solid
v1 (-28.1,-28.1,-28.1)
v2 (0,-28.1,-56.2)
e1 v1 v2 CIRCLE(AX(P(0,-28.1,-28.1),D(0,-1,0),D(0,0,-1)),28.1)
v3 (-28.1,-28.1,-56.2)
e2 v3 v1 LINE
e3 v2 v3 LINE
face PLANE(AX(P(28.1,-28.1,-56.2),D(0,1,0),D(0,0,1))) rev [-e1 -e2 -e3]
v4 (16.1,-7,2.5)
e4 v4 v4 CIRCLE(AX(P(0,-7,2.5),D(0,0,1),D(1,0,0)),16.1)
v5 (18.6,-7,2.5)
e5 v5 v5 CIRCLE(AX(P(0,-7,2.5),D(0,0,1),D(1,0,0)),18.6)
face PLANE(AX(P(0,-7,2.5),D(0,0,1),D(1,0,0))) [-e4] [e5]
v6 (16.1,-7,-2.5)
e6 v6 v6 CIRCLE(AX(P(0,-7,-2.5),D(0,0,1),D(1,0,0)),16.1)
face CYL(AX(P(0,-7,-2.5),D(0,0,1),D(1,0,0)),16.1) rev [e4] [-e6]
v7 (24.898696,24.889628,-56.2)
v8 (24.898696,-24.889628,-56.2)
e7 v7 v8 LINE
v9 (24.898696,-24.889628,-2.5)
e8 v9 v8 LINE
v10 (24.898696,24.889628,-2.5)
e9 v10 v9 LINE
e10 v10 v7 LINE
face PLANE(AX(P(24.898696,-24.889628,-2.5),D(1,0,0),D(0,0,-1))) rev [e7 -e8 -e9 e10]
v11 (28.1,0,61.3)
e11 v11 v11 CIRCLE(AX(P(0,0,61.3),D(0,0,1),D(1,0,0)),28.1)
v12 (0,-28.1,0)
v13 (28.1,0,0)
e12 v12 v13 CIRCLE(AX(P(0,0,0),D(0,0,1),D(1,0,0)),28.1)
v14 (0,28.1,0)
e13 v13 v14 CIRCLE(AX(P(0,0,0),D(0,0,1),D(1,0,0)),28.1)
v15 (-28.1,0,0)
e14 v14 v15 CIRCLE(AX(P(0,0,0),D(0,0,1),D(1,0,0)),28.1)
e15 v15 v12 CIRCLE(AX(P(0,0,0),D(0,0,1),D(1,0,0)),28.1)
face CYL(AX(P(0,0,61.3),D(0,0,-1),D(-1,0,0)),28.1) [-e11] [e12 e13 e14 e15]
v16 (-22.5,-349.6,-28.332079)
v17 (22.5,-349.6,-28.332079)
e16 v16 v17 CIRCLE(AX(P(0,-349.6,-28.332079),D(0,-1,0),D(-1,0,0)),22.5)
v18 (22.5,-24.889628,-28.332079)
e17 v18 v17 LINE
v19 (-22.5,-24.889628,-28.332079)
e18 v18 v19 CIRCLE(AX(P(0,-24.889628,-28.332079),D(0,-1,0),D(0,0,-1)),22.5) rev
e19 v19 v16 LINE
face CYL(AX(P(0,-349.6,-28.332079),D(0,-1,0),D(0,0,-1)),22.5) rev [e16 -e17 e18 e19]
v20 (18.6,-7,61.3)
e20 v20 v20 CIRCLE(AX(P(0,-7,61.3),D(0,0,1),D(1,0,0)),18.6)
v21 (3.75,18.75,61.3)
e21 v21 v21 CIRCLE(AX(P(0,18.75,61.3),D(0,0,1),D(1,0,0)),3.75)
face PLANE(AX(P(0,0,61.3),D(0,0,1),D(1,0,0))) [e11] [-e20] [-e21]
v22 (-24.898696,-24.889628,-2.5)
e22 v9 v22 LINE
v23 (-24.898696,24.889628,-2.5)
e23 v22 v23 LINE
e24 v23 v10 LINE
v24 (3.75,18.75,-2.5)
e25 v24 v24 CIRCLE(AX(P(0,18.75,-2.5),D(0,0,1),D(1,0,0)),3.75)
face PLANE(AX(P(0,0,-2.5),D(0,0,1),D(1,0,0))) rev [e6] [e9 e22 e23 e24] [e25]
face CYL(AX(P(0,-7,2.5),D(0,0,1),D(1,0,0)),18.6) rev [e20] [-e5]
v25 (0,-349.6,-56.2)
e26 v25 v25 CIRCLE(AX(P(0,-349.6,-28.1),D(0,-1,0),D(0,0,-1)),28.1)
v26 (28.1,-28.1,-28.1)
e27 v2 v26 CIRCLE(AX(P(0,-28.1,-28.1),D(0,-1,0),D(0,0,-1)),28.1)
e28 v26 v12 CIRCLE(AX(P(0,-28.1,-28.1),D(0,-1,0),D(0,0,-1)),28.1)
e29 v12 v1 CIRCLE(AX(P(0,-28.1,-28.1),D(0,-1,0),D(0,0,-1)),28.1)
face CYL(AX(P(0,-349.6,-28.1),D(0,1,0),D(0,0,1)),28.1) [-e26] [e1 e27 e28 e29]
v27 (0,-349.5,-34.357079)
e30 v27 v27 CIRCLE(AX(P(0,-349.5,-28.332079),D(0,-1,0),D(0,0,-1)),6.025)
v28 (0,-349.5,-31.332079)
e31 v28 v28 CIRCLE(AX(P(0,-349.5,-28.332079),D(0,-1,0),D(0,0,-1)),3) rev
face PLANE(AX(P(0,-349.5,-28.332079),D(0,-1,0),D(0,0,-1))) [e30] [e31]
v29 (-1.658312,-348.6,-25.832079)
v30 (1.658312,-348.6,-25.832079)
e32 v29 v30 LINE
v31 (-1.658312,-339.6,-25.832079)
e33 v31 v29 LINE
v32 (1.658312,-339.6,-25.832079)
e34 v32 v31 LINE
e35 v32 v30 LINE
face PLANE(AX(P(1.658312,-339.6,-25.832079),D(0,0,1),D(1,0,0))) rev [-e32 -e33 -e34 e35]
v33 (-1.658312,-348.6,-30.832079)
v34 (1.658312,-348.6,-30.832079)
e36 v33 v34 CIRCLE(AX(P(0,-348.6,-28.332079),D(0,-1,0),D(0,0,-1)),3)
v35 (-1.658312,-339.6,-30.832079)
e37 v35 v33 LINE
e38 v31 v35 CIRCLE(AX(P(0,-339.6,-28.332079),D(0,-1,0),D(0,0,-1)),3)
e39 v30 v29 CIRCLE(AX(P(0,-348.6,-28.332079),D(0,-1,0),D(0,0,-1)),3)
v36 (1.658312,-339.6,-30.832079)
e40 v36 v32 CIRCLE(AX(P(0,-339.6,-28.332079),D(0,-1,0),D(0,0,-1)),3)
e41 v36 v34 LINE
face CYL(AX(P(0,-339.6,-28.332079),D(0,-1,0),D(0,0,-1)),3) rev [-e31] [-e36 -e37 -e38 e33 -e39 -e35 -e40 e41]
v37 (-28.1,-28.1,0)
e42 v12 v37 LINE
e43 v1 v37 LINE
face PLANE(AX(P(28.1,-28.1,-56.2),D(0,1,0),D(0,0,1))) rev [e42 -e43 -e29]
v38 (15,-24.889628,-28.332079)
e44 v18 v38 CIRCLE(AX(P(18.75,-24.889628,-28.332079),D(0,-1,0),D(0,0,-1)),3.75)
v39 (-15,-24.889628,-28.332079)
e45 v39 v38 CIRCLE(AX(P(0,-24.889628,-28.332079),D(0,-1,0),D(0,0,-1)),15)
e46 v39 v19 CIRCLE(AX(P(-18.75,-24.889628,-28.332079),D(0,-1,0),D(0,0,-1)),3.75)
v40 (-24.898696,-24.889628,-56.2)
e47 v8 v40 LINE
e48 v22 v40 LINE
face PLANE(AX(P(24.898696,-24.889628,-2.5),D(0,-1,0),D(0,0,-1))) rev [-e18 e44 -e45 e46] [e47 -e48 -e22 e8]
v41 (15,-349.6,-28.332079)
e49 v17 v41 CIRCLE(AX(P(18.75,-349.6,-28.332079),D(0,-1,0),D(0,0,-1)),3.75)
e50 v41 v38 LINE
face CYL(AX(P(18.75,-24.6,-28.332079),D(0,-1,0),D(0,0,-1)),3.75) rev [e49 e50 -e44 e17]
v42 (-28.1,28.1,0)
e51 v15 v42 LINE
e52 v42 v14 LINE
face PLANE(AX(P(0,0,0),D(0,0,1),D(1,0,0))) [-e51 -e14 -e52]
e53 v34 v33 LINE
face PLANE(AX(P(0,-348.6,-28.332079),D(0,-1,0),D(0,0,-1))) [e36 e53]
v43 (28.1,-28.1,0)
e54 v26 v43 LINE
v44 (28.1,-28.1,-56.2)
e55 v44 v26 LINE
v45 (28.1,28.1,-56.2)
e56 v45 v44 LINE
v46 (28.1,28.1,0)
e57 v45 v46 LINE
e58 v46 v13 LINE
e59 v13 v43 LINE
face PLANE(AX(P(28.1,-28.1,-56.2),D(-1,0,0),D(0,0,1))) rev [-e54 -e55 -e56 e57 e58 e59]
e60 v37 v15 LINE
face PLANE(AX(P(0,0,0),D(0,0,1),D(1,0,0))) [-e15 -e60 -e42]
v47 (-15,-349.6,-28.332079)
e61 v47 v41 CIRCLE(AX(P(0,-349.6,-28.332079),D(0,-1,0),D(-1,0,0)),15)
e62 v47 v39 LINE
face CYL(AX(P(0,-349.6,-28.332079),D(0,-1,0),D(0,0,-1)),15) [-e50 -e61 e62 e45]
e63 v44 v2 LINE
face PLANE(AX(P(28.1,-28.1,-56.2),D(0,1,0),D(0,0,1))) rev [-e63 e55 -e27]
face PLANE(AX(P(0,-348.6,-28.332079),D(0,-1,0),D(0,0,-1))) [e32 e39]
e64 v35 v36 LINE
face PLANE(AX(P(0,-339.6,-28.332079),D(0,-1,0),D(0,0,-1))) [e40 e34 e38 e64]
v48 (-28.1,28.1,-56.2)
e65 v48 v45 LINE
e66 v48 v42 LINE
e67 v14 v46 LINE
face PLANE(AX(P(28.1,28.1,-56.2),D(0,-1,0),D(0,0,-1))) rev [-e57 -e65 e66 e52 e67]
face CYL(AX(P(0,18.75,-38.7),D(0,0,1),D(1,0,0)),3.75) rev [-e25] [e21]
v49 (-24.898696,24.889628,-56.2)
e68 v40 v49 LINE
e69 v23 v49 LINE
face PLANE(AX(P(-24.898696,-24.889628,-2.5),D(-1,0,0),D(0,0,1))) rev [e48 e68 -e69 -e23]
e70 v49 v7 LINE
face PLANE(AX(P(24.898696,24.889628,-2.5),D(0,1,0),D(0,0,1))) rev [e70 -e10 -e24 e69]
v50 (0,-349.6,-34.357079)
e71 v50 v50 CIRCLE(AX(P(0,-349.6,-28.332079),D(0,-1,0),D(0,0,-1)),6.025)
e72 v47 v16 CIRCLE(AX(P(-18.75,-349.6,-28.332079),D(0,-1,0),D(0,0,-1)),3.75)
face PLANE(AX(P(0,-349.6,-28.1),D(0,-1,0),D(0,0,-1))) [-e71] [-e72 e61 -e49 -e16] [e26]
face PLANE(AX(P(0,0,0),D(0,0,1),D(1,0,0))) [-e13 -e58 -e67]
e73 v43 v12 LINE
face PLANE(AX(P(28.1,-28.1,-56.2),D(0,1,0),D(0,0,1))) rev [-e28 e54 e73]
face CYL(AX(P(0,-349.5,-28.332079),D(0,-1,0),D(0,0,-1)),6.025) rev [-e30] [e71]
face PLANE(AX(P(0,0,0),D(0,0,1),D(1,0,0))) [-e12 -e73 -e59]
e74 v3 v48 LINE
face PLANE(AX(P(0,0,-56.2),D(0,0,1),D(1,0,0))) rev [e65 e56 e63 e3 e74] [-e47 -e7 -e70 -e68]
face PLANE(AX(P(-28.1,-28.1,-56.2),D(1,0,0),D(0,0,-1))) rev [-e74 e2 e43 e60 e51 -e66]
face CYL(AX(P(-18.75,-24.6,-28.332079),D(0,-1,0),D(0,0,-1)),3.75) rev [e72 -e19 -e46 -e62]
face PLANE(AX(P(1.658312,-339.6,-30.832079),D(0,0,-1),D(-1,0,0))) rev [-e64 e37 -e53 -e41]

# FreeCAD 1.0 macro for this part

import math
import FreeCAD as App
import Part
import Sketcher
Q = App.Units.Quantity


def add_polygon(sketch, points):
    """Adds a closed chain of lines whose ends are joined by coincident constraints."""
    first, n = sketch.GeometryCount, len(points)
    for a, b in zip(points, points[1:] + points[:1]):
        sketch.addGeometry(Part.LineSegment(App.Vector(*a, 0), App.Vector(*b, 0)), False)
    for i in range(n):
        sketch.addConstraint(Sketcher.Constraint("Coincident", first + i, 2, first + (i + 1) % n, 1))

doc = App.newDocument("Part")
body = doc.addObject("PartDesign::Body", "Body")

sketch1 = body.newObject("Sketcher::SketchObject", "Sketch")
sketch1.AttachmentSupport = (doc.getObject("XY_Plane"), [""])
sketch1.MapMode = "FlatFace"
sketch1.addGeometry(Part.Circle(App.Vector(0, 0, 0), App.Vector(0, 0, 1), 28), False)
sketch1.addConstraint([
    Sketcher.Constraint("Coincident", 0, 3, -1, 1),
    Sketcher.Constraint("Diameter", 0, Q("56.2 mm")),
])
pad1 = body.newObject("PartDesign::Pad", "Pad")
pad1.Profile = sketch1
pad1.Length = 61.3

sketch2 = body.newObject("Sketcher::SketchObject", "Sketch001")
sketch2.AttachmentSupport = (doc.getObject("XY_Plane"), [""])
sketch2.MapMode = "FlatFace"
sketch2.AttachmentOffset = App.Placement(App.Vector(0, 0, 61.3), App.Rotation())
sketch2.addGeometry(Part.Circle(App.Vector(0, -7, 0), App.Vector(0, 0, 1), 19), False)
sketch2.addConstraint([
    Sketcher.Constraint("PointOnObject", 0, 3, -2),
    Sketcher.Constraint("Diameter", 0, Q("37.2 mm")),
    Sketcher.Constraint("DistanceY", 0, 3, -1, 1, Q("7 mm")),
])
pocket1 = body.newObject("PartDesign::Pocket", "Pocket")
pocket1.Profile = sketch2
pocket1.Length = 58.8

sketch3 = body.newObject("Sketcher::SketchObject", "Sketch002")
sketch3.AttachmentSupport = (doc.getObject("XY_Plane"), [""])
sketch3.MapMode = "FlatFace"
add_polygon(sketch3, [(28, 28), (28, -28), (-28, -28), (-28, 28)])
sketch3.addConstraint([
    Sketcher.Constraint("Vertical", 0),
    Sketcher.Constraint("Horizontal", 1),
    Sketcher.Constraint("Vertical", 2),
    Sketcher.Constraint("Horizontal", 3),
    Sketcher.Constraint("Symmetric", 0, 2, 2, 2, -1, 1),
    Sketcher.Constraint("Equal", 3, 0),
    Sketcher.Constraint("DistanceX", 1, 2, 1, 1, Q("56.2 mm")),
])
pad2 = body.newObject("PartDesign::Pad", "Pad001")
pad2.Profile = sketch3
pad2.Length = 56.2
pad2.Reversed = True

sketch4 = body.newObject("Sketcher::SketchObject", "Sketch003")
sketch4.AttachmentSupport = (doc.getObject("XY_Plane"), [""])
sketch4.MapMode = "FlatFace"
sketch4.AttachmentOffset = App.Placement(App.Vector(0, 0, 2.5), App.Rotation())
sketch4.addGeometry(Part.Circle(App.Vector(0, -7, 0), App.Vector(0, 0, 1), 16), False)
sketch4.addConstraint([
    Sketcher.Constraint("PointOnObject", 0, 3, -2),
    Sketcher.Constraint("Diameter", 0, Q("32.2 mm")),
    Sketcher.Constraint("DistanceY", 0, 3, -1, 1, Q("7 mm")),
])
pocket2 = body.newObject("PartDesign::Pocket", "Pocket001")
pocket2.Profile = sketch4
pocket2.Length = 5

sketch5 = body.newObject("Sketcher::SketchObject", "Sketch004")
sketch5.AttachmentSupport = (doc.getObject("XY_Plane"), [""])
sketch5.MapMode = "FlatFace"
sketch5.AttachmentOffset = App.Placement(App.Vector(0, 0, -56.2), App.Rotation())
add_polygon(sketch5, [(25, 25), (25, -25), (-25, -25), (-25, 25)])
sketch5.addConstraint([
    Sketcher.Constraint("Vertical", 0),
    Sketcher.Constraint("Horizontal", 1),
    Sketcher.Constraint("Vertical", 2),
    Sketcher.Constraint("Horizontal", 3),
    Sketcher.Constraint("Symmetric", 0, 2, 2, 2, -1, 1),
    Sketcher.Constraint("DistanceX", 1, 2, 1, 1, Q("49.797391 mm")),
    Sketcher.Constraint("DistanceY", 0, 2, 0, 1, Q("49.779255 mm")),
])
pocket3 = body.newObject("PartDesign::Pocket", "Pocket002")
pocket3.Profile = sketch5
pocket3.Length = 53.7
pocket3.Reversed = True

sketch6 = body.newObject("Sketcher::SketchObject", "Sketch005")
sketch6.AttachmentSupport = (doc.getObject("XZ_Plane"), [""])
sketch6.MapMode = "FlatFace"
sketch6.AttachmentOffset = App.Placement(App.Vector(0, 0, 28.1), App.Rotation())
sketch6.addGeometry(Part.Circle(App.Vector(0, -28, 0), App.Vector(0, 0, 1), 28), False)
sketch6.addConstraint([
    Sketcher.Constraint("PointOnObject", 0, 3, -2),
    Sketcher.Constraint("Diameter", 0, Q("56.2 mm")),
    Sketcher.Constraint("DistanceY", 0, 3, -1, 1, Q("28.1 mm")),
])
pad3 = body.newObject("PartDesign::Pad", "Pad002")
pad3.Profile = sketch6
pad3.Length = 321.5

sketch7 = body.newObject("Sketcher::SketchObject", "Sketch006")
sketch7.AttachmentSupport = (doc.getObject("XZ_Plane"), [""])
sketch7.MapMode = "FlatFace"
sketch7.AttachmentOffset = App.Placement(App.Vector(0, 0, 349.6), App.Rotation())
sketch7.addGeometry([
    Part.LineSegment(App.Vector(1.7, -25.8, 0), App.Vector(-1.7, -25.8, 0)),
    Part.ArcOfCircle(Part.Circle(App.Vector(0, -28.3, 0), App.Vector(0, 0, 1), 3), math.radians(124), math.radians(236)),
    Part.LineSegment(App.Vector(-1.7, -30.8, 0), App.Vector(1.7, -30.8, 0)),
    Part.ArcOfCircle(Part.Circle(App.Vector(0, -28.3, 0), App.Vector(0, 0, 1), 3), math.radians(-56), math.radians(56)),
], False)
sketch7.addConstraint([
    Sketcher.Constraint("Coincident", 0, 2, 1, 1),
    Sketcher.Constraint("Coincident", 1, 2, 2, 1),
    Sketcher.Constraint("Coincident", 2, 2, 3, 1),
    Sketcher.Constraint("Coincident", 3, 2, 0, 1),
    Sketcher.Constraint("Horizontal", 0),
    Sketcher.Constraint("Horizontal", 2),
    Sketcher.Constraint("Coincident", 3, 3, 1, 3),
    Sketcher.Constraint("Equal", 1, 3),
    Sketcher.Constraint("PointOnObject", 1, 3, -2),
    Sketcher.Constraint("Vertical", 0, 2, 1, 2),
    Sketcher.Constraint("Radius", 1, Q("3 mm")),
    Sketcher.Constraint("DistanceY", 1, 2, 0, 2, Q("5 mm")),
    Sketcher.Constraint("DistanceY", 1, 3, -1, 1, Q("28.332079 mm")),
])
pocket4 = body.newObject("PartDesign::Pocket", "Pocket003")
pocket4.Profile = sketch7
pocket4.Length = 10

sketch8 = body.newObject("Sketcher::SketchObject", "Sketch007")
sketch8.AttachmentSupport = (doc.getObject("XZ_Plane"), [""])
sketch8.MapMode = "FlatFace"
sketch8.AttachmentOffset = App.Placement(App.Vector(0, 0, 349.6), App.Rotation())
sketch8.addGeometry(Part.Circle(App.Vector(0, -28.3, 0), App.Vector(0, 0, 1), 3), False)
sketch8.addConstraint([
    Sketcher.Constraint("PointOnObject", 0, 3, -2),
    Sketcher.Constraint("Diameter", 0, Q("6 mm")),
    Sketcher.Constraint("DistanceY", 0, 3, -1, 1, Q("28.332079 mm")),
])
pocket5 = body.newObject("PartDesign::Pocket", "Pocket004")
pocket5.Profile = sketch8
pocket5.Length = 1

sketch9 = body.newObject("Sketcher::SketchObject", "Sketch008")
sketch9.AttachmentSupport = (doc.getObject("XZ_Plane"), [""])
sketch9.MapMode = "FlatFace"
sketch9.AttachmentOffset = App.Placement(App.Vector(0, 0, 349.6), App.Rotation())
sketch9.addGeometry(Part.Circle(App.Vector(0, -28, 0), App.Vector(0, 0, 1), 6), False)
sketch9.addConstraint([
    Sketcher.Constraint("PointOnObject", 0, 3, -2),
    Sketcher.Constraint("Diameter", 0, Q("12.05 mm")),
    Sketcher.Constraint("DistanceY", 0, 3, -1, 1, Q("28.332079 mm")),
])
pocket6 = body.newObject("PartDesign::Pocket", "Pocket005")
pocket6.Profile = sketch9
pocket6.Length = 0.1

sketch10 = body.newObject("Sketcher::SketchObject", "Sketch009")
sketch10.AttachmentSupport = (doc.getObject("XY_Plane"), [""])
sketch10.MapMode = "FlatFace"
sketch10.AttachmentOffset = App.Placement(App.Vector(0, 0, -28.332079), App.Rotation())
add_polygon(sketch10, [(-23, -350), (-15, -350), (-15, -20), (-23, -20)])
sketch10.addConstraint([
    Sketcher.Constraint("Horizontal", 0),
    Sketcher.Constraint("Vertical", 1),
    Sketcher.Constraint("Horizontal", 2),
    Sketcher.Constraint("Vertical", 3),
    Sketcher.Constraint("DistanceX", 0, 1, 0, 2, Q("7.5 mm")),
    Sketcher.Constraint("DistanceY", 1, 1, 1, 2, Q("329.6 mm")),
    Sketcher.Constraint("DistanceX", 0, 2, -1, 1, Q("15 mm")),
    Sketcher.Constraint("DistanceY", 1, 2, -1, 1, Q("20 mm")),
])

sketch11 = body.newObject("Sketcher::SketchObject", "Sketch010")
sketch11.AttachmentSupport = (doc.getObject("XZ_Plane"), [""])
sketch11.MapMode = "FlatFace"
sketch11.AttachmentOffset = App.Placement(App.Vector(0, 0, 349.6), App.Rotation())
sketch11.addGeometry(Part.ArcOfCircle(Part.Circle(App.Vector(0, -28, 0), App.Vector(0, 0, 1), 15), math.radians(180), math.radians(360)), False)
sketch11.addConstraint([
    Sketcher.Constraint("Symmetric", 0, 1, 0, 2, -2),
    Sketcher.Constraint("Radius", 0, Q("15 mm")),
    Sketcher.Constraint("DistanceY", 0, 3, -1, 1, Q("28.332079 mm")),
    Sketcher.Constraint("DistanceY", 0, 1, -1, 1, Q("28.332079 mm")),
])
doc.recompute()

subtractivepipe = body.newObject("PartDesign::SubtractivePipe", "SubtractivePipe")
subtractivepipe.Profile = sketch10
subtractivepipe.Spine = (sketch11, ["Edge1"])

sketch12 = body.newObject("Sketcher::SketchObject", "Sketch011")
sketch12.AttachmentSupport = (doc.getObject("XY_Plane"), [""])
sketch12.MapMode = "FlatFace"
sketch12.AttachmentOffset = App.Placement(App.Vector(0, 0, 61.3), App.Rotation())
sketch12.addGeometry(Part.Circle(App.Vector(0, 18.8, 0), App.Vector(0, 0, 1), 3.8), False)
sketch12.addConstraint([
    Sketcher.Constraint("PointOnObject", 0, 3, -2),
    Sketcher.Constraint("Diameter", 0, Q("7.5 mm")),
    Sketcher.Constraint("DistanceY", -1, 1, 0, 3, Q("18.75 mm")),
])
pocket7 = body.newObject("PartDesign::Pocket", "Pocket006")
pocket7.Profile = sketch12
pocket7.Length = 100

sketch13 = body.newObject("Sketcher::SketchObject", "Sketch012")
sketch13.AttachmentSupport = (doc.getObject("XZ_Plane"), [""])
sketch13.MapMode = "FlatFace"
sketch13.AttachmentOffset = App.Placement(App.Vector(0, 0, 349.6), App.Rotation())
sketch13.addGeometry([
    Part.Circle(App.Vector(18.8, -28.3, 0), App.Vector(0, 0, 1), 3.8),
    Part.Circle(App.Vector(-18.8, -28.3, 0), App.Vector(0, 0, 1), 3.8),
], False)
sketch13.addConstraint([
    Sketcher.Constraint("Equal", 0, 1),
    Sketcher.Constraint("Symmetric", 0, 3, 1, 3, -2),
    Sketcher.Constraint("Diameter", 0, Q("7.5 mm")),
    Sketcher.Constraint("DistanceX", 1, 3, 0, 3, Q("37.5 mm")),
    Sketcher.Constraint("DistanceY", 0, 3, -1, 1, Q("28.332079 mm")),
])
pocket8 = body.newObject("PartDesign::Pocket", "Pocket007")
pocket8.Profile = sketch13
pocket8.Length = 325

doc.recompute()
